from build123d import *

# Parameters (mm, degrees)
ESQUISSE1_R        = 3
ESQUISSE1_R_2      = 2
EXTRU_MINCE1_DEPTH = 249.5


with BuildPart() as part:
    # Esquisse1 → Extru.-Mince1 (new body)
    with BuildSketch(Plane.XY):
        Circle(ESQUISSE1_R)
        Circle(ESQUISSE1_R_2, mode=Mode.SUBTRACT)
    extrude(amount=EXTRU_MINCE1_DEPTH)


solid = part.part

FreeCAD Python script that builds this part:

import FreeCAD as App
import Part
import Sketcher
from FreeCAD import Vector

doc = App.newDocument("Part")
body = doc.addObject("PartDesign::Body", "Body")

sketch1 = body.newObject("Sketcher::SketchObject", "Sketch")
sketch1.AttachmentSupport = (doc.getObject("XY_Plane"), [""])
sketch1.MapMode = "FlatFace"
sketch1.addGeometry([
    Part.Circle(Vector(0, 0, 0), Vector(0, 0, 1), 3),
    Part.Circle(Vector(0, 0, 0), Vector(0, 0, 1), 2),
], False)
sketch1.addConstraint([
    Sketcher.Constraint("Coincident", 0, 3, -1, 1),
    Sketcher.Constraint("Coincident", 1, 3, -1, 1),
    Sketcher.Constraint("Diameter", 0, 6.0),
    Sketcher.Constraint("Diameter", 1, 4.0),
])
pad1 = body.newObject("PartDesign::Pad", "Pad")
pad1.Profile = sketch1
pad1.Length = 249.5

doc.recompute()
